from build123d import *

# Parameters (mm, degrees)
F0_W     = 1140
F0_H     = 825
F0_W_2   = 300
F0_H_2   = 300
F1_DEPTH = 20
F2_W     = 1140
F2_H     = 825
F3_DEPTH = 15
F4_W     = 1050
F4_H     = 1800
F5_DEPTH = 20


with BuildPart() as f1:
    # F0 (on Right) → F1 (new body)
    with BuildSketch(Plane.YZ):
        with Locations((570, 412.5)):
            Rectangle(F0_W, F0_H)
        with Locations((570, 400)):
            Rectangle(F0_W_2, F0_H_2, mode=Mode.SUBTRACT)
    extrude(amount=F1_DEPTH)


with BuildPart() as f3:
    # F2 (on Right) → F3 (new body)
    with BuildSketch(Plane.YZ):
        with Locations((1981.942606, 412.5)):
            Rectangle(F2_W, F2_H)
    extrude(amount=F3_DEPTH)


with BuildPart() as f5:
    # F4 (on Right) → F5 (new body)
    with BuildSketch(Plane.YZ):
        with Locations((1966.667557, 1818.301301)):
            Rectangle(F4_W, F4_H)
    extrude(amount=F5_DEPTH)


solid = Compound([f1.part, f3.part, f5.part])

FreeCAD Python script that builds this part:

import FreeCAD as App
import Part
import Sketcher
from FreeCAD import Vector


def add_polygon(sketch, points):
    """Adds a closed chain of lines whose ends are joined by coincident constraints."""
    first, n = sketch.GeometryCount, len(points)
    for a, b in zip(points, points[1:] + points[:1]):
        sketch.addGeometry(Part.LineSegment(App.Vector(*a, 0), App.Vector(*b, 0)), False)
    for i in range(n):
        sketch.addConstraint(Sketcher.Constraint("Coincident", first + i, 2, first + (i + 1) % n, 1))

doc = App.newDocument("Part")
body = doc.addObject("PartDesign::Body", "Body")

sketch1 = body.newObject("Sketcher::SketchObject", "Sketch")
sketch1.AttachmentSupport = (doc.getObject("YZ_Plane"), [""])
sketch1.MapMode = "FlatFace"
add_polygon(sketch1, [(0, 825), (0, 0), (1140, 0), (1140, 825)])
add_polygon(sketch1, [(720, 250), (420, 250), (420, 550), (720, 550)])
sketch1.addConstraint([
    Sketcher.Constraint("Vertical", 0),
    Sketcher.Constraint("Horizontal", 1),
    Sketcher.Constraint("Vertical", 2),
    Sketcher.Constraint("Horizontal", 3),
    Sketcher.Constraint("Horizontal", 4),
    Sketcher.Constraint("Vertical", 5),
    Sketcher.Constraint("Horizontal", 6),
    Sketcher.Constraint("Vertical", 7),
    Sketcher.Constraint("Coincident", 0, 2, -1, 1),
    Sketcher.Constraint("Equal", 6, 5),
    Sketcher.Constraint("DistanceX", 1, 1, 1, 2, 1140.0),
    Sketcher.Constraint("DistanceX", 4, 2, 4, 1, 300.0),
    Sketcher.Constraint("DistanceY", 0, 2, 0, 1, 825.0),
    Sketcher.Constraint("DistanceX", -1, 1, 4, 2, 420.0),
    Sketcher.Constraint("DistanceY", -1, 1, 4, 2, 250.0),
])
pad1 = body.newObject("PartDesign::Pad", "Pad")
pad1.Profile = sketch1
pad1.Length = 20
body2 = doc.addObject("PartDesign::Body", "Body001")

sketch2 = body2.newObject("Sketcher::SketchObject", "Sketch001")
sketch2.AttachmentSupport = (doc.getObject("YZ_Plane001"), [""])
sketch2.MapMode = "FlatFace"
add_polygon(sketch2, [(1412, 825), (1412, 0), (2552, 0), (2552, 825)])
sketch2.addConstraint([
    Sketcher.Constraint("Vertical", 0),
    Sketcher.Constraint("Horizontal", 1),
    Sketcher.Constraint("Vertical", 2),
    Sketcher.Constraint("Horizontal", 3),
    Sketcher.Constraint("PointOnObject", 0, 2, -1),
    Sketcher.Constraint("DistanceX", 1, 1, 1, 2, 1140.0),
    Sketcher.Constraint("DistanceY", 0, 2, 0, 1, 825.0),
    Sketcher.Constraint("DistanceX", -1, 1, 0, 2, 1411.942606),
])
pad2 = body2.newObject("PartDesign::Pad", "Pad001")
pad2.Profile = sketch2
pad2.Length = 15
body3 = doc.addObject("PartDesign::Body", "Body002")

sketch3 = body3.newObject("Sketcher::SketchObject", "Sketch002")
sketch3.AttachmentSupport = (doc.getObject("YZ_Plane002"), [""])
sketch3.MapMode = "FlatFace"
add_polygon(sketch3, [(1442, 2718), (1442, 918), (2492, 918), (2492, 2718)])
sketch3.addConstraint([
    Sketcher.Constraint("Vertical", 0),
    Sketcher.Constraint("Horizontal", 1),
    Sketcher.Constraint("Vertical", 2),
    Sketcher.Constraint("Horizontal", 3),
    Sketcher.Constraint("DistanceX", 1, 1, 1, 2, 1050.0),
    Sketcher.Constraint("DistanceY", 0, 2, 0, 1, 1800.0),
    Sketcher.Constraint("DistanceY", -1, 1, 0, 2, 918.301301),
    Sketcher.Constraint("DistanceX", -1, 1, 0, 2, 1441.667557),
])
pad3 = body3.newObject("PartDesign::Pad", "Pad002")
pad3.Profile = sketch3
pad3.Length = 20

doc.recompute()
